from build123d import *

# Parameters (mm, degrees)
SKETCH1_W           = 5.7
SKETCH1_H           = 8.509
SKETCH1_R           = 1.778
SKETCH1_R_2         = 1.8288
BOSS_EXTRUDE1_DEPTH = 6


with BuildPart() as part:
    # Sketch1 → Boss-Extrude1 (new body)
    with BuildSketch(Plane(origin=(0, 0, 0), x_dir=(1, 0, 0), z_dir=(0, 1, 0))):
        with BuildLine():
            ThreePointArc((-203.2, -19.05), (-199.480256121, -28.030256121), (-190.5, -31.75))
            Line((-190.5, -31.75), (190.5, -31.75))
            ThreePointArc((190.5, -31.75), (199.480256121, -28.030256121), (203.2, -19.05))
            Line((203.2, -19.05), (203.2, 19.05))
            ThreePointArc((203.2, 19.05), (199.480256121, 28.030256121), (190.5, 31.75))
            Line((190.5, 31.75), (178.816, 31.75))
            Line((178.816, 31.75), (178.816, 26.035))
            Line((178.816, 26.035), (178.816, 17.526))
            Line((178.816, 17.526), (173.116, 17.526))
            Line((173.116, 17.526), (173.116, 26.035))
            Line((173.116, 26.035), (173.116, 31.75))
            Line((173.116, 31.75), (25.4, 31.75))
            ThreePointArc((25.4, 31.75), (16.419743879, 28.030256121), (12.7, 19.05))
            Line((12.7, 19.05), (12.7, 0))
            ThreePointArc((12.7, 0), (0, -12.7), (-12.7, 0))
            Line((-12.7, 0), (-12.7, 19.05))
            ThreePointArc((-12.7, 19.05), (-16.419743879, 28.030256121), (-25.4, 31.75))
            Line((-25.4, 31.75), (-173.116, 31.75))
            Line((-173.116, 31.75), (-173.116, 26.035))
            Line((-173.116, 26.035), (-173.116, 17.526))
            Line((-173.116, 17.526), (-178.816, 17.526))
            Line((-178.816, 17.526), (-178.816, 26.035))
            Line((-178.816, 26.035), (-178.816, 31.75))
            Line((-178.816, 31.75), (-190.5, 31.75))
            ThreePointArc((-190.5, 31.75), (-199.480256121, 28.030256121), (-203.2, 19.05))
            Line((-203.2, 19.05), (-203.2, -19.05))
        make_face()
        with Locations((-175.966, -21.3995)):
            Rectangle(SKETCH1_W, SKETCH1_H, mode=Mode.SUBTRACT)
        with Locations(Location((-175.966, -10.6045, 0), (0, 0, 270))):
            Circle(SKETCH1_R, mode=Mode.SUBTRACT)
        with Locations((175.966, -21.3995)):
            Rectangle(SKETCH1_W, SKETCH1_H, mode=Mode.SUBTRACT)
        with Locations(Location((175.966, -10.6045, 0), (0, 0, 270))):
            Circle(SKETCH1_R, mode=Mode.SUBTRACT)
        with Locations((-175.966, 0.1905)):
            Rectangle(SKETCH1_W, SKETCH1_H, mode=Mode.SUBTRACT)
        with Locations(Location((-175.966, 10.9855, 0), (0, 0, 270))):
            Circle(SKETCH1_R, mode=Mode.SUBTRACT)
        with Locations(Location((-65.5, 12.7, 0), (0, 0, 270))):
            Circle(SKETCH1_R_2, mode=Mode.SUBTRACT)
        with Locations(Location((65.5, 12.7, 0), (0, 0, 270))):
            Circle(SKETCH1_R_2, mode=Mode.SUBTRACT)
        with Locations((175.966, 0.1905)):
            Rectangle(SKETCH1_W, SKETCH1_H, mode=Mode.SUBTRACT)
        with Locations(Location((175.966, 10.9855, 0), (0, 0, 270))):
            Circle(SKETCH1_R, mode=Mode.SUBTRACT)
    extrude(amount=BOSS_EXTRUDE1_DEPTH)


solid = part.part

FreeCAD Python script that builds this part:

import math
import FreeCAD as App
import Part
import Sketcher
Q = App.Units.Quantity


def add_polygon(sketch, points):
    """Adds a closed chain of lines whose ends are joined by coincident constraints."""
    first, n = sketch.GeometryCount, len(points)
    for a, b in zip(points, points[1:] + points[:1]):
        sketch.addGeometry(Part.LineSegment(App.Vector(*a, 0), App.Vector(*b, 0)), False)
    for i in range(n):
        sketch.addConstraint(Sketcher.Constraint("Coincident", first + i, 2, first + (i + 1) % n, 1))

doc = App.newDocument("Part")
body = doc.addObject("PartDesign::Body", "Body")

# Sketch on XZ plane
sketch1 = body.newObject("Sketcher::SketchObject", "Sketch")
sketch1.AttachmentSupport = (doc.getObject("XZ_Plane"), [""])
sketch1.MapMode = "FlatFace"
sketch1.addGeometry(Part.ArcOfCircle(Part.Circle(App.Vector(-190.5, 19.1, 0), App.Vector(0, 0, 1), 12.7), math.radians(90), math.radians(180)), False)  # 0
sketch1.addGeometry(Part.LineSegment(App.Vector(-190.5, 31.8, 0), App.Vector(190.5, 31.8, 0)), False)  # 1
sketch1.addGeometry(Part.ArcOfCircle(Part.Circle(App.Vector(190.5, 19.1, 0), App.Vector(0, 0, 1), 12.7), math.radians(0), math.radians(90)), False)  # 2
sketch1.addGeometry(Part.LineSegment(App.Vector(203.2, 19.1, 0), App.Vector(203.2, -19.1, 0)), False)  # 3
sketch1.addGeometry(Part.ArcOfCircle(Part.Circle(App.Vector(190.5, -19.1, 0), App.Vector(0, 0, 1), 12.7), math.radians(-90), math.radians(0)), False)  # 4
sketch1.addGeometry(Part.LineSegment(App.Vector(190.5, -31.8, 0), App.Vector(178.8, -31.8, 0)), False)  # 5
sketch1.addGeometry(Part.LineSegment(App.Vector(178.8, -31.8, 0), App.Vector(178.8, -17.5, 0)), False)  # 6
sketch1.addGeometry(Part.LineSegment(App.Vector(178.8, -17.5, 0), App.Vector(173.1, -17.5, 0)), False)  # 7
sketch1.addGeometry(Part.LineSegment(App.Vector(173.1, -17.5, 0), App.Vector(173.1, -31.8, 0)), False)  # 8
sketch1.addGeometry(Part.LineSegment(App.Vector(173.1, -31.8, 0), App.Vector(25.4, -31.8, 0)), False)  # 9
sketch1.addGeometry(Part.ArcOfCircle(Part.Circle(App.Vector(25.4, -19.1, 0), App.Vector(0, 0, 1), 12.7), math.radians(180), math.radians(270)), False)  # 10
sketch1.addGeometry(Part.LineSegment(App.Vector(12.7, -19.1, 0), App.Vector(12.7, 0, 0)), False)  # 11
sketch1.addGeometry(Part.ArcOfCircle(Part.Circle(App.Vector(0, 0, 0), App.Vector(0, 0, 1), 12.7), math.radians(0), math.radians(180)), False)  # 12
sketch1.addGeometry(Part.LineSegment(App.Vector(-12.7, 0, 0), App.Vector(-12.7, -19.1, 0)), False)  # 13
sketch1.addGeometry(Part.ArcOfCircle(Part.Circle(App.Vector(-25.4, -19.1, 0), App.Vector(0, 0, 1), 12.7), math.radians(-90), math.radians(0)), False)  # 14
sketch1.addGeometry(Part.LineSegment(App.Vector(-25.4, -31.8, 0), App.Vector(-173.1, -31.8, 0)), False)  # 15
sketch1.addGeometry(Part.LineSegment(App.Vector(-173.1, -31.8, 0), App.Vector(-173.1, -17.5, 0)), False)  # 16
sketch1.addGeometry(Part.LineSegment(App.Vector(-173.1, -17.5, 0), App.Vector(-178.8, -17.5, 0)), False)  # 17
sketch1.addGeometry(Part.LineSegment(App.Vector(-178.8, -17.5, 0), App.Vector(-178.8, -31.8, 0)), False)  # 18
sketch1.addGeometry(Part.LineSegment(App.Vector(-178.8, -31.8, 0), App.Vector(-190.5, -31.8, 0)), False)  # 19
sketch1.addGeometry(Part.ArcOfCircle(Part.Circle(App.Vector(-190.5, -19.1, 0), App.Vector(0, 0, 1), 12.7), math.radians(180), math.radians(270)), False)  # 20
sketch1.addGeometry(Part.LineSegment(App.Vector(-203.2, -19.1, 0), App.Vector(-203.2, 19.1, 0)), False)  # 21
add_polygon(sketch1, [(-173.1, 25.7), (-178.8, 25.7), (-178.8, 17.1), (-173.1, 17.1)])  # lines 22-25
sketch1.addGeometry(Part.Circle(App.Vector(-176, 10.6, 0), App.Vector(0, 0, 1), 1.8), False)  # 26
add_polygon(sketch1, [(178.8, 25.7), (173.1, 25.7), (173.1, 17.1), (178.8, 17.1)])  # lines 27-30
sketch1.addGeometry(Part.Circle(App.Vector(176, 10.6, 0), App.Vector(0, 0, 1), 1.8), False)  # 31
add_polygon(sketch1, [(-173.1, 4.1), (-178.8, 4.1), (-178.8, -4.4), (-173.1, -4.4)])  # lines 32-35
sketch1.addGeometry(Part.Circle(App.Vector(-176, -11, 0), App.Vector(0, 0, 1), 1.8), False)  # 36
sketch1.addGeometry(Part.Circle(App.Vector(-65.5, -12.7, 0), App.Vector(0, 0, 1), 1.8), False)  # 37
add_polygon(sketch1, [(178.8, 4.1), (173.1, 4.1), (173.1, -4.4), (178.8, -4.4)])  # lines 38-41
sketch1.addGeometry(Part.Circle(App.Vector(65.5, -12.7, 0), App.Vector(0, 0, 1), 1.8), False)  # 42
sketch1.addGeometry(Part.Circle(App.Vector(176, -11, 0), App.Vector(0, 0, 1), 1.8), False)  # 43
sketch1.addConstraint([
    Sketcher.Constraint("Tangent", 0, 1, 1, 1),
    Sketcher.Constraint("Tangent", 1, 2, 2, 2),
    Sketcher.Constraint("Tangent", 2, 1, 3, 1),
    Sketcher.Constraint("Tangent", 3, 2, 4, 2),
    Sketcher.Constraint("Tangent", 4, 1, 5, 1),
    Sketcher.Constraint("Coincident", 5, 2, 6, 1),
    Sketcher.Constraint("Coincident", 6, 2, 7, 1),
    Sketcher.Constraint("Coincident", 7, 2, 8, 1),
    Sketcher.Constraint("Coincident", 8, 2, 9, 1),
    Sketcher.Constraint("Tangent", 9, 2, 10, 2),
    Sketcher.Constraint("Tangent", 10, 1, 11, 1),
    Sketcher.Constraint("Tangent", 11, 2, 12, 1),
    Sketcher.Constraint("Tangent", 12, 2, 13, 1),
    Sketcher.Constraint("Tangent", 13, 2, 14, 2),
    Sketcher.Constraint("Tangent", 14, 1, 15, 1),
    Sketcher.Constraint("Coincident", 15, 2, 16, 1),
    Sketcher.Constraint("Coincident", 16, 2, 17, 1),
    Sketcher.Constraint("Coincident", 17, 2, 18, 1),
    Sketcher.Constraint("Coincident", 18, 2, 19, 1),
    Sketcher.Constraint("Tangent", 19, 2, 20, 2),
    Sketcher.Constraint("Tangent", 20, 1, 21, 1),
    Sketcher.Constraint("Tangent", 21, 2, 0, 2),
    Sketcher.Constraint("Horizontal", 1),
    Sketcher.Constraint("Vertical", 3),
    Sketcher.Constraint("Horizontal", 5),
    Sketcher.Constraint("Vertical", 6),
    Sketcher.Constraint("Horizontal", 7),
    Sketcher.Constraint("Vertical", 8),
    Sketcher.Constraint("Horizontal", 9),
    Sketcher.Constraint("Vertical", 11),
    Sketcher.Constraint("Vertical", 13),
    Sketcher.Constraint("Horizontal", 15),
    Sketcher.Constraint("Vertical", 16),
    Sketcher.Constraint("Horizontal", 17),
    Sketcher.Constraint("Vertical", 18),
    Sketcher.Constraint("Horizontal", 19),
    Sketcher.Constraint("Vertical", 21),
    Sketcher.Constraint("Horizontal", 22),
    Sketcher.Constraint("Vertical", 23),
    Sketcher.Constraint("Horizontal", 24),
    Sketcher.Constraint("Vertical", 25),
    Sketcher.Constraint("Horizontal", 27),
    Sketcher.Constraint("Vertical", 28),
    Sketcher.Constraint("Horizontal", 29),
    Sketcher.Constraint("Vertical", 30),
    Sketcher.Constraint("Horizontal", 32),
    Sketcher.Constraint("Vertical", 33),
    Sketcher.Constraint("Horizontal", 34),
    Sketcher.Constraint("Vertical", 35),
    Sketcher.Constraint("Horizontal", 38),
    Sketcher.Constraint("Vertical", 39),
    Sketcher.Constraint("Horizontal", 40),
    Sketcher.Constraint("Vertical", 41),
    Sketcher.Constraint("Coincident", 12, 3, -1, 1),
    Sketcher.Constraint("Equal", 0, 2),
    Sketcher.Constraint("Equal", 2, 4),
    Sketcher.Constraint("Equal", 4, 10),
    Sketcher.Constraint("Equal", 10, 12),
    Sketcher.Constraint("Equal", 12, 14),
    Sketcher.Constraint("Equal", 14, 20),
    Sketcher.Constraint("Equal", 26, 31),
    Sketcher.Constraint("Equal", 31, 36),
    Sketcher.Constraint("Equal", 37, 42),
    Sketcher.Constraint("Equal", 36, 43),
    Sketcher.Constraint("Symmetric", 0, 3, 4, 3, -1, 1),
    Sketcher.Constraint("Symmetric", 26, 3, 31, 3, -2),
    Sketcher.Constraint("Symmetric", 37, 3, 42, 3, -2),
    Sketcher.Constraint("Symmetric", 36, 3, 43, 3, -2),
    Sketcher.Constraint("Symmetric", 8, 2, 15, 2, -2),
    Sketcher.Constraint("Symmetric", 6, 2, 17, 2, -2),
    Sketcher.Constraint("Symmetric", 25, 2, 27, 2, -2),
    Sketcher.Constraint("Symmetric", 23, 2, 29, 2, -2),
    Sketcher.Constraint("Symmetric", 35, 2, 38, 2, -2),
    Sketcher.Constraint("Symmetric", 33, 2, 40, 2, -2),
    Sketcher.Constraint("Horizontal", 4, 3, 10, 3),
    Sketcher.Constraint("Horizontal", 14, 3, 20, 3),
    Sketcher.Constraint("Vertical", 26, 3, 36, 3),
    Sketcher.Constraint("Vertical", 18, 2, 22, 2),
    Sketcher.Constraint("Vertical", 16, 2, 24, 2),
    Sketcher.Constraint("Vertical", 23, 2, 32, 2),
    Sketcher.Constraint("Vertical", 25, 2, 34, 2),
    Sketcher.Constraint("Equal", 30, 33),
    Sketcher.Constraint("Radius", 0, Q("0.5 in")),
    Sketcher.Constraint("Diameter", 26, Q("0.14 in")),
    Sketcher.Constraint("DistanceX", 1, 1, 1, 2, Q("15 in")),
    Sketcher.Constraint("Diameter", 37, Q("0.144 in")),
    Sketcher.Constraint("DistanceY", 3, 2, 3, 1, Q("1.5 in")),
    Sketcher.Constraint("DistanceX", 5, 2, 5, 1, Q("0.46 in")),
    Sketcher.Constraint("DistanceY", 6, 1, 6, 2, Q("0.56 in")),
    Sketcher.Constraint("DistanceY", 37, 3, -1, 1, Q("0.5 in")),
    Sketcher.Constraint("DistanceY", 23, 2, 23, 1, Q("0.335 in")),
    Sketcher.Constraint("DistanceY", -1, 1, 22, 2, Q("1.01 in")),
    Sketcher.Constraint("DistanceY", -1, 1, 32, 2, Q("0.16 in")),
    Sketcher.Constraint("DistanceY", 36, 3, 26, 3, Q("0.85 in")),
    Sketcher.Constraint("DistanceX", 7, 2, 7, 1, 5.7),
    Sketcher.Constraint("DistanceY", -1, 1, 26, 3, Q("0.4175 in")),
    Sketcher.Constraint("DistanceX", 26, 3, -1, 1, 175.966),
    Sketcher.Constraint("DistanceX", 37, 3, -1, 1, 65.5),
])
pad1 = body.newObject("PartDesign::Pad", "Pad")
pad1.Profile = sketch1
pad1.Length = 6
pad1.Reversed = True

doc.recompute()
